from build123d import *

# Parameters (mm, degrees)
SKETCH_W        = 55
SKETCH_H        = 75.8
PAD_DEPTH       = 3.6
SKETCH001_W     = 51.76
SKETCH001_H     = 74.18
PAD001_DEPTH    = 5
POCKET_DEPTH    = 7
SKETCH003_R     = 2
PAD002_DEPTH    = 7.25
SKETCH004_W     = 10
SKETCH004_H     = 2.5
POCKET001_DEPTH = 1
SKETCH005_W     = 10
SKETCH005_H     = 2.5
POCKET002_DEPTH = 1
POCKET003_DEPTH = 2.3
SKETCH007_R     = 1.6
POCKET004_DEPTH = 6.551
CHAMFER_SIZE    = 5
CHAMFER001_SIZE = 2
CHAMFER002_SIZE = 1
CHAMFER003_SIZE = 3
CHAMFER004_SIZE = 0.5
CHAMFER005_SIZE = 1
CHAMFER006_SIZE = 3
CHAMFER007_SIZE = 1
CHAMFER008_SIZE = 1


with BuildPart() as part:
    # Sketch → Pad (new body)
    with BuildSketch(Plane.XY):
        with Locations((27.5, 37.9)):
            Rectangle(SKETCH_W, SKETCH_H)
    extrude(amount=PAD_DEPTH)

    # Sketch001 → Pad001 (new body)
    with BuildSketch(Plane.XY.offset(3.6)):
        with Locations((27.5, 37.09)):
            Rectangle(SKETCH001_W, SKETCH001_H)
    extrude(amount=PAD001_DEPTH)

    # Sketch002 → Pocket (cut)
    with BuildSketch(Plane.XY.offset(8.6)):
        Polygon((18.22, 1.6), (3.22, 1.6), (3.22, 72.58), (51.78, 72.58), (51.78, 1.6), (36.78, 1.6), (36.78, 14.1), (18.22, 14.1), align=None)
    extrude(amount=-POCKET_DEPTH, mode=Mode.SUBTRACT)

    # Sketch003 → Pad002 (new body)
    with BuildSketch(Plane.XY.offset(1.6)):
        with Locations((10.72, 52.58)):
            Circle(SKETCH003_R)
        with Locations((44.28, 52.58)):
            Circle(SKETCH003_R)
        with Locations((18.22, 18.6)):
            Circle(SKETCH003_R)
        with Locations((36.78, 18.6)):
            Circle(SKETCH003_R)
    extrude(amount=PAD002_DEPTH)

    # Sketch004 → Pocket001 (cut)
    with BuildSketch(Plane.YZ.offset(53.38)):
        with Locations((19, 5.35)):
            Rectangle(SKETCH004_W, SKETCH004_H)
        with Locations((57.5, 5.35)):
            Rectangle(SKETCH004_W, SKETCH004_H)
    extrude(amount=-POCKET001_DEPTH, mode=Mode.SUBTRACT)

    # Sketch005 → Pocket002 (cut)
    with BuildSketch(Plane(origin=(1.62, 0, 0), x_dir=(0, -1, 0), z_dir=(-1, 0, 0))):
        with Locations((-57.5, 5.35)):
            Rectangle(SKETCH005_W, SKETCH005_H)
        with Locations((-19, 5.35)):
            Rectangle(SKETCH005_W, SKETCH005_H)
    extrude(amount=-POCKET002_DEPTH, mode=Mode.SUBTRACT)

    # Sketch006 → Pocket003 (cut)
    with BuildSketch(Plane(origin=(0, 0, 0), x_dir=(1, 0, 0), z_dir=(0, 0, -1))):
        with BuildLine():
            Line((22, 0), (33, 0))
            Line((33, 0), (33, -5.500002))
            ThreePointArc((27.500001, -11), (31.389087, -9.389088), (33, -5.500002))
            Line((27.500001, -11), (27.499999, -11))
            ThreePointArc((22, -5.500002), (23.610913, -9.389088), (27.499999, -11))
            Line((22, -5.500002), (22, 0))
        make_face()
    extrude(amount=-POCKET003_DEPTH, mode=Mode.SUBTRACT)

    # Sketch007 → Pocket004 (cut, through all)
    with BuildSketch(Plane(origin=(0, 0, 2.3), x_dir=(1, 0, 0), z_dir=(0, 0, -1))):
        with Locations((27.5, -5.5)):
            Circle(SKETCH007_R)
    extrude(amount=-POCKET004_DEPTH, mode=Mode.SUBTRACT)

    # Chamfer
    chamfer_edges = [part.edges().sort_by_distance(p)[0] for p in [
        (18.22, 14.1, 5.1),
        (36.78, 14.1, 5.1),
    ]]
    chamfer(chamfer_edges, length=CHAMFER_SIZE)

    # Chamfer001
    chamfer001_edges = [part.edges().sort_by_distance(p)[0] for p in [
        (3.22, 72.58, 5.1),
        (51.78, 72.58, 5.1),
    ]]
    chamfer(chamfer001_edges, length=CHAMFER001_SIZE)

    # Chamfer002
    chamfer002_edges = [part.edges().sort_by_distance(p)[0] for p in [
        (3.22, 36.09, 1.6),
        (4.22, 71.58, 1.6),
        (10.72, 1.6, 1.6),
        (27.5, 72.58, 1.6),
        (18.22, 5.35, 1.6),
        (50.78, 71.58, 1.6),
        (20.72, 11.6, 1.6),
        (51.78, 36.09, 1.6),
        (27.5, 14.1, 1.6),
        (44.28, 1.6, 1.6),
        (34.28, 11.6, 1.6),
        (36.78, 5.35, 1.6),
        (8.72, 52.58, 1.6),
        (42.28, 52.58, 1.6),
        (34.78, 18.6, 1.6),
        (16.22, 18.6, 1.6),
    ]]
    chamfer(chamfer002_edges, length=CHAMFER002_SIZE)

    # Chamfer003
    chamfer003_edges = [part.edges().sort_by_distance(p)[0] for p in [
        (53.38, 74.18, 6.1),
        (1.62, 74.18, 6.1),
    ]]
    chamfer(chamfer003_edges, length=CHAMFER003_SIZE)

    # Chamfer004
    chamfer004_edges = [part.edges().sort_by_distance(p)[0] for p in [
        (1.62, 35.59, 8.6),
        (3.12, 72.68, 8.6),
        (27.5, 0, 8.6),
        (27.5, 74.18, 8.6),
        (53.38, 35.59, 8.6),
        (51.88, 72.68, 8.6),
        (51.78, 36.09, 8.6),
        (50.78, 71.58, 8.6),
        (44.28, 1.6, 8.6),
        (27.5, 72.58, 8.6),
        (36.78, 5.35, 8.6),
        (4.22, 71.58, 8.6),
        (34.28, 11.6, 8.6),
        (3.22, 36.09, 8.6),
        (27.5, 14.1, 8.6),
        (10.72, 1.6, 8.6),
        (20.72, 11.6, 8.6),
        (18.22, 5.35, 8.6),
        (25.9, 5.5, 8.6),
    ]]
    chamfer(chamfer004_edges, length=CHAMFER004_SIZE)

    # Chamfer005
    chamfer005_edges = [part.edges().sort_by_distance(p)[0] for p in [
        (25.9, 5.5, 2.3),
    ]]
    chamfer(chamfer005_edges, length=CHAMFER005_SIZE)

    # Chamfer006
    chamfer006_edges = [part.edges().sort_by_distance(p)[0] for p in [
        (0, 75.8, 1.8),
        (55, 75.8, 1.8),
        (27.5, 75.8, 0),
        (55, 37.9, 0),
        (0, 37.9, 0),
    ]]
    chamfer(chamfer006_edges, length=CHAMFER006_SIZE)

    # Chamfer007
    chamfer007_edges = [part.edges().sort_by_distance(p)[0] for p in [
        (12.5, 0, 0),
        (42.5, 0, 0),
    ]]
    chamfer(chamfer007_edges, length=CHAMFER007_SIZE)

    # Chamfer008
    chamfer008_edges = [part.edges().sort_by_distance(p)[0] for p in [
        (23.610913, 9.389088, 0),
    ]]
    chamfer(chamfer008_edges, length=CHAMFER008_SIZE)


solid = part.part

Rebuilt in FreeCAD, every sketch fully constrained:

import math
import FreeCAD as App
import Part
import Sketcher
from FreeCAD import Vector
Q = App.Units.Quantity


def edges_at(feature, points):
    """Names of the edges that pass closest to the given points."""
    edges = feature.Shape.Edges
    near = lambda p: min(range(len(edges)), key=lambda i: edges[i].distToShape(Part.Vertex(*p))[0])
    return sorted({f"Edge{near(p) + 1}" for p in points})


def add_polygon(sketch, points):
    """Adds a closed chain of lines whose ends are joined by coincident constraints."""
    first, n = sketch.GeometryCount, len(points)
    for a, b in zip(points, points[1:] + points[:1]):
        sketch.addGeometry(Part.LineSegment(App.Vector(*a, 0), App.Vector(*b, 0)), False)
    for i in range(n):
        sketch.addConstraint(Sketcher.Constraint("Coincident", first + i, 2, first + (i + 1) % n, 1))

doc = App.newDocument("Part")
body = doc.addObject("PartDesign::Body", "Body")

sketch1 = body.newObject("Sketcher::SketchObject", "Sketch")
sketch1.AttachmentSupport = (doc.getObject("XY_Plane"), [""])
sketch1.MapMode = "FlatFace"
add_polygon(sketch1, [(0, 76), (0, 0), (55, 0), (55, 76)])
sketch1.addConstraint([
    Sketcher.Constraint("Vertical", 0),
    Sketcher.Constraint("Horizontal", 1),
    Sketcher.Constraint("Vertical", 2),
    Sketcher.Constraint("Horizontal", 3),
    Sketcher.Constraint("Coincident", 0, 2, -1, 1),
    Sketcher.Constraint("DistanceX", 1, 1, 1, 2, Q("55 mm")),
    Sketcher.Constraint("DistanceY", 0, 2, 0, 1, Q("75.8 mm")),
])
pad1 = body.newObject("PartDesign::Pad", "Pad")
pad1.Profile = sketch1
pad1.Length = 3.6

sketch2 = body.newObject("Sketcher::SketchObject", "Sketch001")
sketch2.AttachmentSupport = (doc.getObject("XY_Plane"), [""])
sketch2.MapMode = "FlatFace"
sketch2.AttachmentOffset = App.Placement(Vector(0, 0, 3.6), App.Rotation())
add_polygon(sketch2, [(2, 74), (2, 0), (53, 0), (53, 74)])
sketch2.addConstraint([
    Sketcher.Constraint("Vertical", 0),
    Sketcher.Constraint("Horizontal", 1),
    Sketcher.Constraint("Vertical", 2),
    Sketcher.Constraint("Horizontal", 3),
    Sketcher.Constraint("PointOnObject", 0, 2, -1),
    Sketcher.Constraint("DistanceX", 1, 1, 1, 2, Q("51.76 mm")),
    Sketcher.Constraint("DistanceY", 0, 2, 0, 1, Q("74.18 mm")),
    Sketcher.Constraint("DistanceX", -1, 1, 0, 2, Q("1.62 mm")),
])
pad2 = body.newObject("PartDesign::Pad", "Pad001")
pad2.Profile = sketch2
pad2.Length = 5

sketch3 = body.newObject("Sketcher::SketchObject", "Sketch002")
sketch3.AttachmentSupport = (doc.getObject("XY_Plane"), [""])
sketch3.MapMode = "FlatFace"
sketch3.AttachmentOffset = App.Placement(Vector(0, 0, 8.6), App.Rotation())
add_polygon(sketch3, [(3, 2), (18, 2), (18, 14), (37, 14), (37, 2), (52, 2), (52, 73), (3, 73)])
sketch3.addConstraint([
    Sketcher.Constraint("Horizontal", 0),
    Sketcher.Constraint("Vertical", 1),
    Sketcher.Constraint("Horizontal", 2),
    Sketcher.Constraint("Vertical", 3),
    Sketcher.Constraint("Horizontal", 4),
    Sketcher.Constraint("Vertical", 5),
    Sketcher.Constraint("Horizontal", 6),
    Sketcher.Constraint("Vertical", 7),
    Sketcher.Constraint("Horizontal", 0, 2, 3, 2),
    Sketcher.Constraint("Equal", 0, 4),
    Sketcher.Constraint("DistanceX", 0, 1, 0, 2, Q("15 mm")),
    Sketcher.Constraint("DistanceY", 1, 1, 1, 2, Q("12.5 mm")),
    Sketcher.Constraint("DistanceX", 2, 1, 2, 2, Q("18.56 mm")),
    Sketcher.Constraint("DistanceY", 5, 1, 5, 2, Q("70.98 mm")),
    Sketcher.Constraint("DistanceY", -1, 1, 0, 2, Q("1.6 mm")),
    Sketcher.Constraint("DistanceX", -1, 1, 0, 2, Q("18.22 mm")),
])
pocket1 = body.newObject("PartDesign::Pocket", "Pocket")
pocket1.Profile = sketch3
pocket1.Length = 7

sketch4 = body.newObject("Sketcher::SketchObject", "Sketch003")
sketch4.AttachmentSupport = (doc.getObject("XY_Plane"), [""])
sketch4.MapMode = "FlatFace"
sketch4.AttachmentOffset = App.Placement(Vector(0, 0, 1.6), App.Rotation())
sketch4.addGeometry([
    Part.Circle(Vector(10.7, 52.6, 0), Vector(0, 0, 1), 2),
    Part.Circle(Vector(44.3, 52.6, 0), Vector(0, 0, 1), 2),
    Part.Circle(Vector(18.2, 18.6, 0), Vector(0, 0, 1), 2),
    Part.Circle(Vector(36.8, 18.6, 0), Vector(0, 0, 1), 2),
], False)
sketch4.addConstraint([
    Sketcher.Constraint("Equal", 0, 1),
    Sketcher.Constraint("Equal", 1, 2),
    Sketcher.Constraint("Equal", 2, 3),
    Sketcher.Constraint("Horizontal", 0, 3, 1, 3),
    Sketcher.Constraint("Horizontal", 2, 3, 3, 3),
    Sketcher.Constraint("Diameter", 0, Q("4 mm")),
    Sketcher.Constraint("DistanceY", -1, 1, 2, 3, Q("18.6 mm")),
    Sketcher.Constraint("DistanceX", 0, 3, 2, 3, Q("7.5 mm")),
    Sketcher.Constraint("DistanceX", 3, 3, 1, 3, Q("7.5 mm")),
    Sketcher.Constraint("DistanceX", -1, 1, 0, 3, Q("10.72 mm")),
    Sketcher.Constraint("DistanceY", -1, 1, 0, 3, Q("52.58 mm")),
    Sketcher.Constraint("DistanceX", -1, 1, 1, 3, Q("44.28 mm")),
])
pad3 = body.newObject("PartDesign::Pad", "Pad002")
pad3.Profile = sketch4
pad3.Length = 7.25

sketch5 = body.newObject("Sketcher::SketchObject", "Sketch004")
sketch5.AttachmentSupport = (doc.getObject("YZ_Plane"), [""])
sketch5.MapMode = "FlatFace"
sketch5.AttachmentOffset = App.Placement(Vector(0, 0, 53.38), App.Rotation())
add_polygon(sketch5, [(14, 6.6), (14, 4.1), (24, 4.1), (24, 6.6)])
add_polygon(sketch5, [(52.5, 6.6), (52.5, 4.1), (62.5, 4.1), (62.5, 6.6)])
sketch5.addConstraint([
    Sketcher.Constraint("Vertical", 0),
    Sketcher.Constraint("Horizontal", 1),
    Sketcher.Constraint("Vertical", 2),
    Sketcher.Constraint("Horizontal", 3),
    Sketcher.Constraint("Vertical", 4),
    Sketcher.Constraint("Horizontal", 5),
    Sketcher.Constraint("Vertical", 6),
    Sketcher.Constraint("Horizontal", 7),
    Sketcher.Constraint("Horizontal", 1, 2, 4, 2),
    Sketcher.Constraint("Horizontal", 3, 2, 6, 2),
    Sketcher.Constraint("Equal", 3, 5),
    Sketcher.Constraint("DistanceX", 1, 1, 1, 2, Q("10 mm")),
    Sketcher.Constraint("DistanceY", 0, 2, 0, 1, Q("2.5 mm")),
    Sketcher.Constraint("DistanceX", -1, 1, 0, 2, Q("14 mm")),
    Sketcher.Constraint("DistanceY", -1, 1, 0, 2, Q("4.1 mm")),
    Sketcher.Constraint("DistanceX", -1, 1, 4, 2, Q("52.5 mm")),
])
pocket2 = body.newObject("PartDesign::Pocket", "Pocket001")
pocket2.Profile = sketch5
pocket2.Length = 1

sketch6 = body.newObject("Sketcher::SketchObject", "Sketch005")
sketch6.AttachmentSupport = (doc.getObject("YZ_Plane"), [""])
sketch6.MapMode = "FlatFace"
sketch6.AttachmentOffset = App.Placement(Vector(0, 0, 1.62), App.Rotation())
add_polygon(sketch6, [(62.5, 6.6), (62.5, 4.1), (52.5, 4.1), (52.5, 6.6)])
add_polygon(sketch6, [(24, 6.6), (24, 4.1), (14, 4.1), (14, 6.6)])
sketch6.addConstraint([
    Sketcher.Constraint("Vertical", 0),
    Sketcher.Constraint("Horizontal", 1),
    Sketcher.Constraint("Vertical", 2),
    Sketcher.Constraint("Horizontal", 3),
    Sketcher.Constraint("Vertical", 4),
    Sketcher.Constraint("Horizontal", 5),
    Sketcher.Constraint("Vertical", 6),
    Sketcher.Constraint("Horizontal", 7),
    Sketcher.Constraint("Horizontal", 1, 2, 4, 2),
    Sketcher.Constraint("Horizontal", 3, 2, 6, 2),
    Sketcher.Constraint("Equal", 3, 5),
    Sketcher.Constraint("DistanceX", 1, 2, 1, 1, Q("10 mm")),
    Sketcher.Constraint("DistanceY", 0, 2, 0, 1, Q("2.5 mm")),
    Sketcher.Constraint("DistanceX", -1, 1, 4, 2, Q("24 mm")),
    Sketcher.Constraint("DistanceX", -1, 1, 0, 2, Q("62.5 mm")),
    Sketcher.Constraint("DistanceY", -1, 1, 0, 2, Q("4.1 mm")),
])
pocket3 = body.newObject("PartDesign::Pocket", "Pocket002")
pocket3.Profile = sketch6
pocket3.Length = 1
pocket3.Reversed = True

sketch7 = body.newObject("Sketcher::SketchObject", "Sketch006")
sketch7.AttachmentSupport = (doc.getObject("XY_Plane"), [""])
sketch7.MapMode = "FlatFace"
sketch7.addGeometry([
    Part.LineSegment(Vector(33, 0, 0), Vector(22, 0, 0)),
    Part.LineSegment(Vector(22, 0, 0), Vector(22, 5.500002, 0)),
    Part.ArcOfCircle(Part.Circle(Vector(27.499999, 5.500001, 0), Vector(0, 0, 1), 5.499999), math.radians(90.000003), math.radians(179.999986)),
    Part.LineSegment(Vector(27.500001, 11, 0), Vector(27.499999, 11, 0)),
    Part.ArcOfCircle(Part.Circle(Vector(27.500001, 5.500001, 0), Vector(0, 0, 1), 5.499999), math.radians(0.000014), math.radians(89.999997)),
    Part.LineSegment(Vector(33, 5.500002, 0), Vector(33, 0, 0)),
], False)
sketch7.addConstraint([
    Sketcher.Constraint("Coincident", 0, 2, 1, 1),
    Sketcher.Constraint("Coincident", 1, 2, 2, 2),
    Sketcher.Constraint("Coincident", 2, 1, 3, 1),
    Sketcher.Constraint("Coincident", 3, 2, 4, 2),
    Sketcher.Constraint("Coincident", 4, 1, 5, 1),
    Sketcher.Constraint("Coincident", 5, 2, 0, 1),
    Sketcher.Constraint("Horizontal", 0),
    Sketcher.Constraint("Vertical", 1),
    Sketcher.Constraint("Horizontal", 3),
    Sketcher.Constraint("Vertical", 5),
    Sketcher.Constraint("Coincident", 4, 3, 2, 3),
    Sketcher.Constraint("PointOnObject", 0, 2, -1),
    Sketcher.Constraint("Radius", 2, Q("5.499999 mm")),
    Sketcher.Constraint("DistanceX", -1, 1, 0, 2, Q("22 mm")),
    Sketcher.Constraint("DistanceY", -1, 1, 2, 1, Q("11 mm")),
    Sketcher.Constraint("DistanceX", -1, 1, 2, 1, Q("27.499999 mm")),
    Sketcher.Constraint("DistanceX", -1, 1, 3, 2, Q("27.499999 mm")),
    Sketcher.Constraint("DistanceY", 1, 1, 1, 2, Q("5.500002 mm")),
    Sketcher.Constraint("DistanceY", 5, 2, 5, 1, Q("5.500002 mm")),
])
pocket4 = body.newObject("PartDesign::Pocket", "Pocket003")
pocket4.Profile = sketch7
pocket4.Length = 2.3
pocket4.Reversed = True

sketch8 = body.newObject("Sketcher::SketchObject", "Sketch007")
sketch8.AttachmentSupport = (doc.getObject("XY_Plane"), [""])
sketch8.MapMode = "FlatFace"
sketch8.AttachmentOffset = App.Placement(Vector(0, 0, 2.3), App.Rotation())
sketch8.addGeometry(Part.Circle(Vector(27.5, 5.5, 0), Vector(0, 0, 1), 1.6), False)
sketch8.addConstraint([
    Sketcher.Constraint("Diameter", 0, Q("3.2 mm")),
    Sketcher.Constraint("DistanceX", -1, 1, 0, 3, Q("27.5 mm")),
    Sketcher.Constraint("DistanceY", -1, 1, 0, 3, Q("5.5 mm")),
])
pocket5 = body.newObject("PartDesign::Pocket", "Pocket004")
pocket5.Profile = sketch8
pocket5.Type = "ThroughAll"
pocket5.Reversed = True
doc.recompute()

chamfer = body.newObject("PartDesign::Chamfer", "Chamfer")
chamfer.Base = (pocket5, edges_at(pocket5, [(18.22, 14.1, 5.1), (36.78, 14.1, 5.1)]))
chamfer.Size = 5
doc.recompute()

chamfer2 = body.newObject("PartDesign::Chamfer", "Chamfer001")
chamfer2.Base = (chamfer, edges_at(chamfer, [(3.22, 72.58, 5.1), (51.78, 72.58, 5.1)]))
chamfer2.Size = 2
doc.recompute()

chamfer3 = body.newObject("PartDesign::Chamfer", "Chamfer002")
chamfer3.Base = (chamfer2, edges_at(chamfer2, [
    (3.22, 36.09, 1.6),
    (4.22, 71.58, 1.6),
    (10.72, 1.6, 1.6),
    (27.5, 72.58, 1.6),
    (18.22, 5.35, 1.6),
    (50.78, 71.58, 1.6),
    (20.72, 11.6, 1.6),
    (51.78, 36.09, 1.6),
    (27.5, 14.1, 1.6),
    (44.28, 1.6, 1.6),
    (34.28, 11.6, 1.6),
    (36.78, 5.35, 1.6),
    (8.72, 52.58, 1.6),
    (42.28, 52.58, 1.6),
    (34.78, 18.6, 1.6),
    (16.22, 18.6, 1.6),
]))
chamfer3.Size = 1
doc.recompute()

chamfer4 = body.newObject("PartDesign::Chamfer", "Chamfer003")
chamfer4.Base = (chamfer3, edges_at(chamfer3, [(53.38, 74.18, 6.1), (1.62, 74.18, 6.1)]))
chamfer4.Size = 3
doc.recompute()

chamfer5 = body.newObject("PartDesign::Chamfer", "Chamfer004")
chamfer5.Base = (chamfer4, edges_at(chamfer4, [
    (1.62, 35.59, 8.6),
    (3.12, 72.68, 8.6),
    (27.5, 0, 8.6),
    (27.5, 74.18, 8.6),
    (53.38, 35.59, 8.6),
    (51.88, 72.68, 8.6),
    (51.78, 36.09, 8.6),
    (50.78, 71.58, 8.6),
    (44.28, 1.6, 8.6),
    (27.5, 72.58, 8.6),
    (36.78, 5.35, 8.6),
    (4.22, 71.58, 8.6),
    (34.28, 11.6, 8.6),
    (3.22, 36.09, 8.6),
    (27.5, 14.1, 8.6),
    (10.72, 1.6, 8.6),
    (20.72, 11.6, 8.6),
    (18.22, 5.35, 8.6),
    (25.9, 5.5, 8.6),
]))
chamfer5.Size = 0.5
doc.recompute()

chamfer6 = body.newObject("PartDesign::Chamfer", "Chamfer005")
chamfer6.Base = (chamfer5, edges_at(chamfer5, [(25.9, 5.5, 2.3)]))
chamfer6.Size = 1
doc.recompute()

chamfer7 = body.newObject("PartDesign::Chamfer", "Chamfer006")
chamfer7.Base = (chamfer6, edges_at(chamfer6, [
    (0, 75.8, 1.8),
    (55, 75.8, 1.8),
    (27.5, 75.8, 0),
    (55, 37.9, 0),
    (0, 37.9, 0),
]))
chamfer7.Size = 3
doc.recompute()

chamfer8 = body.newObject("PartDesign::Chamfer", "Chamfer007")
chamfer8.Base = (chamfer7, edges_at(chamfer7, [(12.5, 0, 0), (42.5, 0, 0)]))
chamfer8.Size = 1
doc.recompute()

chamfer9 = body.newObject("PartDesign::Chamfer", "Chamfer008")
chamfer9.Base = (chamfer8, edges_at(chamfer8, [(23.611, 9.389, 0)]))
chamfer9.Size = 1

doc.recompute()
